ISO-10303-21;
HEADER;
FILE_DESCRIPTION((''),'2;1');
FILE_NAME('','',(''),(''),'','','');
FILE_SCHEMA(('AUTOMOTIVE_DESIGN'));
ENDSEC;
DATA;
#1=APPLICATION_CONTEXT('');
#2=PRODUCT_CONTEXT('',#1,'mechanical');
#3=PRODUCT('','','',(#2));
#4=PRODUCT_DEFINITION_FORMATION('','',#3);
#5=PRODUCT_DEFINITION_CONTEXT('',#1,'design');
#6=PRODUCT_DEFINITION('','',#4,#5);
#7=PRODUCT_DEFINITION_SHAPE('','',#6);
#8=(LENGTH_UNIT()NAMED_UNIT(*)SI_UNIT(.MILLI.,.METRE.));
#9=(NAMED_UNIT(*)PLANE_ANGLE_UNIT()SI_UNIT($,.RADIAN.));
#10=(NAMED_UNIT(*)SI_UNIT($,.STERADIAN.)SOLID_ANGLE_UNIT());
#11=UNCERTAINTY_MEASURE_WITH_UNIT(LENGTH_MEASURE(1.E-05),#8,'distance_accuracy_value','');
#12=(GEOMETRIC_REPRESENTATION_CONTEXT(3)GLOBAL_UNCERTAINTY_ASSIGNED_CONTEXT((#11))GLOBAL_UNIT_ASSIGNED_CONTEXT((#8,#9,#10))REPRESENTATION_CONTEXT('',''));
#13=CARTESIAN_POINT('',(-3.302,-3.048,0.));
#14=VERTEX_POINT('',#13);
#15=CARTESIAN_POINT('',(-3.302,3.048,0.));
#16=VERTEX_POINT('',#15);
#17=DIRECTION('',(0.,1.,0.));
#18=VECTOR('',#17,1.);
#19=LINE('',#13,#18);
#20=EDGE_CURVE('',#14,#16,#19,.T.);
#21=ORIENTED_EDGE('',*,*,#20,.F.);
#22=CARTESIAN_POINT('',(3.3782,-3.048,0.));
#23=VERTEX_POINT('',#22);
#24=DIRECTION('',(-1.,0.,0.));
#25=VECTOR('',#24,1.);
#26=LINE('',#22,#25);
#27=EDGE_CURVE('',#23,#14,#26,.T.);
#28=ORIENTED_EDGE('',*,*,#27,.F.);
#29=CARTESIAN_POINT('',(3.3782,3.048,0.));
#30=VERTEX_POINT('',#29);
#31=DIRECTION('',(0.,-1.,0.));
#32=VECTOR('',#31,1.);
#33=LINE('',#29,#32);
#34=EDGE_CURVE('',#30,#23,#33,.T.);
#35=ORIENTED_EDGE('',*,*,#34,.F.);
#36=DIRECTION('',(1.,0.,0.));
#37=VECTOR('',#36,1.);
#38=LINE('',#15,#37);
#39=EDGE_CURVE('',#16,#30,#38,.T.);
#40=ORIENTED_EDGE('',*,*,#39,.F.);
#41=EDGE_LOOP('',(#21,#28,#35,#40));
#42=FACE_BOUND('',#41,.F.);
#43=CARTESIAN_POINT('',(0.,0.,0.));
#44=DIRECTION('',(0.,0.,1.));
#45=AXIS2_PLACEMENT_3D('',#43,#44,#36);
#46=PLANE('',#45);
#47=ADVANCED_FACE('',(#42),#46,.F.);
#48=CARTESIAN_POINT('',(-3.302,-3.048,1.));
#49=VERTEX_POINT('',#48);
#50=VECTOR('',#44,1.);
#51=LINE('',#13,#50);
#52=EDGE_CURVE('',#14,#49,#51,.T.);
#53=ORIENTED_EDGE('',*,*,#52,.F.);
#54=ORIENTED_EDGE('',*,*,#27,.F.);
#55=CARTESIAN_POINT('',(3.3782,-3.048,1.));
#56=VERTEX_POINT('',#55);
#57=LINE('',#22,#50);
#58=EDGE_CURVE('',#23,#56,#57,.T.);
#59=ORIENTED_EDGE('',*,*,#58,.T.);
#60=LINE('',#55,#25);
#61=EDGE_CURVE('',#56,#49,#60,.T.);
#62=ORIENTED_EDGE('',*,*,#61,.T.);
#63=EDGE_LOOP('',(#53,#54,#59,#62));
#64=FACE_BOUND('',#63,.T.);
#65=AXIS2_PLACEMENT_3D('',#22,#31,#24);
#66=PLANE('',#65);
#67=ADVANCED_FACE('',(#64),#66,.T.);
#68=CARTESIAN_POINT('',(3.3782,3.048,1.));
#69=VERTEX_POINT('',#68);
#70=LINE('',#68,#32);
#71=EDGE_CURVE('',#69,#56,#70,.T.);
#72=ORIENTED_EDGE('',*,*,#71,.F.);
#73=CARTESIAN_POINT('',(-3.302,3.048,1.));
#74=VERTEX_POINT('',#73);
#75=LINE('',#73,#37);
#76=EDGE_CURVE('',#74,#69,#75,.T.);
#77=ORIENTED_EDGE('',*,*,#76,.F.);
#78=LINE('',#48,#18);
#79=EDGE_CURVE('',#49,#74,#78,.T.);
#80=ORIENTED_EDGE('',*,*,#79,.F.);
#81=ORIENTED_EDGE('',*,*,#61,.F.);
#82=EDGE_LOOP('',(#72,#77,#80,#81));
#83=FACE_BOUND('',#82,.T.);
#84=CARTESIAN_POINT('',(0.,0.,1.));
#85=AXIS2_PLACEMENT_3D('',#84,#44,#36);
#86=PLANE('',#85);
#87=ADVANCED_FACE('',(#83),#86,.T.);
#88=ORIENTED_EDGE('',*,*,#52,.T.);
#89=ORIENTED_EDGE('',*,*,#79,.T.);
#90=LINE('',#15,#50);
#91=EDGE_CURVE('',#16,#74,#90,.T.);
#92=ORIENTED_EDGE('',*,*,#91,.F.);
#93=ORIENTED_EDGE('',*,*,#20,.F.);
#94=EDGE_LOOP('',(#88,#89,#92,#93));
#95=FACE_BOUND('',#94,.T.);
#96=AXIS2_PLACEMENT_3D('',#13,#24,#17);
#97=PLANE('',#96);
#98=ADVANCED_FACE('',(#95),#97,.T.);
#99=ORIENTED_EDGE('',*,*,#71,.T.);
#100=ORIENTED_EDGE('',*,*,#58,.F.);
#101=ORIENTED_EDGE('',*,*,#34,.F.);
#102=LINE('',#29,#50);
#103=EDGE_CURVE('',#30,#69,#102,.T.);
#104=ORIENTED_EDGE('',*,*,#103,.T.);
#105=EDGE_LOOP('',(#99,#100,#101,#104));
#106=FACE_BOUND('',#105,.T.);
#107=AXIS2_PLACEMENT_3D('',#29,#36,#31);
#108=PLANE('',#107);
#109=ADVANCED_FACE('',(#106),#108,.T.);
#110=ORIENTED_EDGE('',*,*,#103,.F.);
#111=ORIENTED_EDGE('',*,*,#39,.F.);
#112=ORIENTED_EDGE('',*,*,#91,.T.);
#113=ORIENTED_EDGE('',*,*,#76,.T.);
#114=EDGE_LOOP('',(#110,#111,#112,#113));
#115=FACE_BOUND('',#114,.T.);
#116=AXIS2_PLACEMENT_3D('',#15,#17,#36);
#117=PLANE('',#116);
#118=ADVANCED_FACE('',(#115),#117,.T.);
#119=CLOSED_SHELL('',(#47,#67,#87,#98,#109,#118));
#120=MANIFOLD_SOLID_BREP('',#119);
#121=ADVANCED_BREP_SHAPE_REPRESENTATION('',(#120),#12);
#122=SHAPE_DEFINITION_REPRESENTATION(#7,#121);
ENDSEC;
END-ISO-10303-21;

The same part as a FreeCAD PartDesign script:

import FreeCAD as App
import Part
import Sketcher
from FreeCAD import Vector
Q = App.Units.Quantity


def add_polygon(sketch, points):
    """Adds a closed chain of lines whose ends are joined by coincident constraints."""
    first, n = sketch.GeometryCount, len(points)
    for a, b in zip(points, points[1:] + points[:1]):
        sketch.addGeometry(Part.LineSegment(App.Vector(*a, 0), App.Vector(*b, 0)), False)
    for i in range(n):
        sketch.addConstraint(Sketcher.Constraint("Coincident", first + i, 2, first + (i + 1) % n, 1))

doc = App.newDocument("Part")
body = doc.addObject("PartDesign::Body", "Body")

# Sketch on XY plane
sketch1 = body.newObject("Sketcher::SketchObject", "Sketch")
sketch1.AttachmentSupport = (doc.getObject("XY_Plane"), [""])
sketch1.MapMode = "FlatFace"
add_polygon(sketch1, [(3, 3), (-3, 3), (-3, -3), (3, -3)])  # lines 0-3
sketch1.addConstraint(Sketcher.Constraint("Horizontal", 0))
sketch1.addConstraint(Sketcher.Constraint("Vertical", 1))
sketch1.addConstraint(Sketcher.Constraint("Horizontal", 2))
sketch1.addConstraint(Sketcher.Constraint("Vertical", 3))
sketch1.addConstraint(Sketcher.Constraint("DistanceY", 1, 2, 1, 1, Q("0.24 in")))
sketch1.addConstraint(Sketcher.Constraint("DistanceX", 0, 2, 0, 1, Q("0.263 in")))
sketch1.addConstraint(Sketcher.Constraint("DistanceX", 0, 2, -1, 1, Q("0.13 in")))
sketch1.addConstraint(Sketcher.Constraint("DistanceY", -1, 1, 0, 2, Q("0.12 in")))
pad1 = body.newObject("PartDesign::Pad", "Pad")
pad1.Profile = sketch1
pad1.Length = 1

doc.recompute()
